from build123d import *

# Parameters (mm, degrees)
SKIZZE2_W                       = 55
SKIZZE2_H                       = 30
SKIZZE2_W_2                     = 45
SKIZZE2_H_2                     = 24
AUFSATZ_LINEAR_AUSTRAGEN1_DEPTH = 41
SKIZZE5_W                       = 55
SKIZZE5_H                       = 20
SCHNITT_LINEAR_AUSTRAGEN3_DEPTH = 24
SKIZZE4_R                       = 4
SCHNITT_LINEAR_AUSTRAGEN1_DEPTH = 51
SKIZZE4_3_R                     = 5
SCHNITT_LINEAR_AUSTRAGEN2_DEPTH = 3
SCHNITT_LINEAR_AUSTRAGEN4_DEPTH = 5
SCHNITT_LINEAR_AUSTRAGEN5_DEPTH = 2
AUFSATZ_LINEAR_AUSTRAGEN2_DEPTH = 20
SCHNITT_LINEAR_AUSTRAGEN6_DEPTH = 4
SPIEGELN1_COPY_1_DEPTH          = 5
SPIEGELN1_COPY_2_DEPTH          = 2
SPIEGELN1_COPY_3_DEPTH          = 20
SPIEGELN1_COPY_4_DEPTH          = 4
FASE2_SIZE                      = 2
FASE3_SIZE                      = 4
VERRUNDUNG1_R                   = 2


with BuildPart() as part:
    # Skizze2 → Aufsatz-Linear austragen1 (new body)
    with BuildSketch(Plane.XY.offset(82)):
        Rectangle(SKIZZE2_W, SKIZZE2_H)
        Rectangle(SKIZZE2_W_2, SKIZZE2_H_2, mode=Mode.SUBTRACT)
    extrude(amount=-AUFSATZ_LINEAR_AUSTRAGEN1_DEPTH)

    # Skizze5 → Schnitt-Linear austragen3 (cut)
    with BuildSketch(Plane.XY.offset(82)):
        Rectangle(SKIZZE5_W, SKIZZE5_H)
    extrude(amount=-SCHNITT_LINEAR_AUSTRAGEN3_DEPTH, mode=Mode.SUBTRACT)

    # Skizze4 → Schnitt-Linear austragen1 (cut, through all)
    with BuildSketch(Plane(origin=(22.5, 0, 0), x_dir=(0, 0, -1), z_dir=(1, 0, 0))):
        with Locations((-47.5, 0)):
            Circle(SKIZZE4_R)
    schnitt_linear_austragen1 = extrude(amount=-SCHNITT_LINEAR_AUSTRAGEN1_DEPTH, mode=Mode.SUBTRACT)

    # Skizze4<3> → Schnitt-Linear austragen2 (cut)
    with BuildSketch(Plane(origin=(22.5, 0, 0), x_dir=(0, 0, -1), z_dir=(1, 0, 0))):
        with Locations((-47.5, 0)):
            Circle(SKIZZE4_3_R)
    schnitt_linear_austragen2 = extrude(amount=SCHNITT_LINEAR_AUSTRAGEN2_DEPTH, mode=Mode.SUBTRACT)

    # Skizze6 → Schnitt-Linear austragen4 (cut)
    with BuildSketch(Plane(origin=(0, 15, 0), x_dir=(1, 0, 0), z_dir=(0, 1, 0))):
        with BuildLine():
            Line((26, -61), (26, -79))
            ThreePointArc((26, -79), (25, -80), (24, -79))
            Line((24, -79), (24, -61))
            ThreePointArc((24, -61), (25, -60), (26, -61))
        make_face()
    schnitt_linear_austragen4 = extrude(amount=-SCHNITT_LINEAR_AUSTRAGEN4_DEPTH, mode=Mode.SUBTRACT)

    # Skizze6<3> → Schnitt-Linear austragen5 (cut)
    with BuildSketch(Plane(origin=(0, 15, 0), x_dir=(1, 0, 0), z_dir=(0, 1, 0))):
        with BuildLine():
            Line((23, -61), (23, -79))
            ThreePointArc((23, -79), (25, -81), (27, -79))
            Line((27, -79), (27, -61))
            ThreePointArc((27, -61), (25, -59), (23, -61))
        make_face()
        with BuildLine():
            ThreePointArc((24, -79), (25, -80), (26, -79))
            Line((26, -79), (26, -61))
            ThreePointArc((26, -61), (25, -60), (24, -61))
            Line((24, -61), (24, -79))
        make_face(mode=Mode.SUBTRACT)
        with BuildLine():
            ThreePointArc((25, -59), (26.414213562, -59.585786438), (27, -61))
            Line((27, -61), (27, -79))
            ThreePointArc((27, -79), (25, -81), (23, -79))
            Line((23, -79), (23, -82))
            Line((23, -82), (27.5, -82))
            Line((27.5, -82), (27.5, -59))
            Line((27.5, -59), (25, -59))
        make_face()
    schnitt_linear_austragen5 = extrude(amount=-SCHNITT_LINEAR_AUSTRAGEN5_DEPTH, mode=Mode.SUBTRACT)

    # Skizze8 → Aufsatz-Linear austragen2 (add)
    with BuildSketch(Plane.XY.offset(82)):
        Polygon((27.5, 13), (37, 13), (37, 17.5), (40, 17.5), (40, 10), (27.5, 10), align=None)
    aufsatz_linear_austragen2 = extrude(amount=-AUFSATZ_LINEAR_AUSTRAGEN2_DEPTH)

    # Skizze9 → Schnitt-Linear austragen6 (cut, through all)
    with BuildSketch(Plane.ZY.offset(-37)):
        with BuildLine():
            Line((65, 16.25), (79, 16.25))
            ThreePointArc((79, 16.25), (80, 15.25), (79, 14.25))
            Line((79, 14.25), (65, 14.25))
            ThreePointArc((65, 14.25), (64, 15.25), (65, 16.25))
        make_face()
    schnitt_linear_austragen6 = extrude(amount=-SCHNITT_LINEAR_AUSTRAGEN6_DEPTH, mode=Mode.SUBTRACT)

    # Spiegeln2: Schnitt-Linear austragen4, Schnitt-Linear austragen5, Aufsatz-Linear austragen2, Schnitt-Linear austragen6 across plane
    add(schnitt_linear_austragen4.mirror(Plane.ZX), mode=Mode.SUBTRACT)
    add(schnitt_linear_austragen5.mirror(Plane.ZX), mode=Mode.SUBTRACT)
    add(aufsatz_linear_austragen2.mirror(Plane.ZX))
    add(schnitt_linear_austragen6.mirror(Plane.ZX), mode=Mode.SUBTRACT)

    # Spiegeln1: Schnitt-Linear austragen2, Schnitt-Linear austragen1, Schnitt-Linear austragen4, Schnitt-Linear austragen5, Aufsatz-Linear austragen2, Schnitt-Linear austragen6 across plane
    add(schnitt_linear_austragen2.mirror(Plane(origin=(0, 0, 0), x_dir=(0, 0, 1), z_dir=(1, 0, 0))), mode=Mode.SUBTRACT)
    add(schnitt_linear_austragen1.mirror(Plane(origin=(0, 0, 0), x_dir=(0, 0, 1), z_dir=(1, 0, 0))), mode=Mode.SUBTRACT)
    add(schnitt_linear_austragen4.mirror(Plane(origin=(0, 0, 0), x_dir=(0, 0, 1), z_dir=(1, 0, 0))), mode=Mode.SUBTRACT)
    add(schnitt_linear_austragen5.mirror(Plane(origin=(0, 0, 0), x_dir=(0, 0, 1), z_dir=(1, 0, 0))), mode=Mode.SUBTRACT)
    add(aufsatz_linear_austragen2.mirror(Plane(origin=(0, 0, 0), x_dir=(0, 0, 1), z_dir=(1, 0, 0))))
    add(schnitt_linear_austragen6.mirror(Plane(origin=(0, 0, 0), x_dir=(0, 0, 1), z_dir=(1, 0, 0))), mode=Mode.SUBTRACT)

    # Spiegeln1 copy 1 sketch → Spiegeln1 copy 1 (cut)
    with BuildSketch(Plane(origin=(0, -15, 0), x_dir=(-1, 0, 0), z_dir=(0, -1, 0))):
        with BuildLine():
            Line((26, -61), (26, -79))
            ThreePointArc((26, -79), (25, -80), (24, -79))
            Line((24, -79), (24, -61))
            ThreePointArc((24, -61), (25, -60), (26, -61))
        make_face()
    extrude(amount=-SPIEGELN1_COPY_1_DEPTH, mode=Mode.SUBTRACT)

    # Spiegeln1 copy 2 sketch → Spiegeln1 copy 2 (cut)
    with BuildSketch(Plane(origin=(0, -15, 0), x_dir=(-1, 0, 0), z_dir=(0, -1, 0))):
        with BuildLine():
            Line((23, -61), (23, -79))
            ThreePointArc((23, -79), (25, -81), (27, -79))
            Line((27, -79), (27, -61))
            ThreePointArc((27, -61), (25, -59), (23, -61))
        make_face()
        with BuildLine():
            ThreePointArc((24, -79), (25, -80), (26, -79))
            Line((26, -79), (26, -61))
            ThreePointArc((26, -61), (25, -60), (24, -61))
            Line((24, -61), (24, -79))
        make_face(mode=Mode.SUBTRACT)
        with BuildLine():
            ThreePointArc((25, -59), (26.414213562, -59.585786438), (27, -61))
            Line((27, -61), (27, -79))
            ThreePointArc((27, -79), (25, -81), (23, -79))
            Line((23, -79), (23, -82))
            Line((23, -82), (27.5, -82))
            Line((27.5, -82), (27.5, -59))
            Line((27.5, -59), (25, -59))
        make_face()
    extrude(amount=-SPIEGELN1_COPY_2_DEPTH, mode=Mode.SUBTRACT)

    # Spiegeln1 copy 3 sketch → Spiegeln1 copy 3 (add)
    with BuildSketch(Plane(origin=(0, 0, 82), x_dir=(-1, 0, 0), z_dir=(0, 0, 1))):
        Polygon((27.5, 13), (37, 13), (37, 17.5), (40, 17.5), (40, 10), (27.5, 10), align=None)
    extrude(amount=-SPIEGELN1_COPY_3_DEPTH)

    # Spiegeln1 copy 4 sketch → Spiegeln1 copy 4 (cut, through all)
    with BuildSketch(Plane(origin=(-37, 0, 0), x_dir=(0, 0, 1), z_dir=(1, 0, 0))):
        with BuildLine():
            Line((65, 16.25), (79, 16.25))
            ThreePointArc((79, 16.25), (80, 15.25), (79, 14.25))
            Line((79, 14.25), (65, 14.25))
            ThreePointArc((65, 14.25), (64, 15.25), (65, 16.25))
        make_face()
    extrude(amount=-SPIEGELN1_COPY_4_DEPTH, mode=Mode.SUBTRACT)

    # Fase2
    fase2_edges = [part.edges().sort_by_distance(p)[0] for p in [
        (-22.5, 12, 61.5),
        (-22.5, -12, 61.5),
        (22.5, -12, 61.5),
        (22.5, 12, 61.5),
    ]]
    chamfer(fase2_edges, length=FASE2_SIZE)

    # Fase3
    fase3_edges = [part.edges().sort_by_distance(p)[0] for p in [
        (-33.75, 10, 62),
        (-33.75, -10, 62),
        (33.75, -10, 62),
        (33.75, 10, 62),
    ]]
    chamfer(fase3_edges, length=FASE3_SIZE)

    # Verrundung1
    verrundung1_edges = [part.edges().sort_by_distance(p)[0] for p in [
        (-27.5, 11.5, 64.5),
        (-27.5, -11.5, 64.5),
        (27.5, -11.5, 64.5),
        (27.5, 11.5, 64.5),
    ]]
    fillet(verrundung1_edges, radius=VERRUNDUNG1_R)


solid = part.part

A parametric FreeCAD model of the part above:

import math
import FreeCAD as App
import Part
import Sketcher
Q = App.Units.Quantity


def edges_at(feature, points):
    """Names of the edges that pass closest to the given points."""
    edges = feature.Shape.Edges
    near = lambda p: min(range(len(edges)), key=lambda i: edges[i].distToShape(Part.Vertex(*p))[0])
    return sorted({f"Edge{near(p) + 1}" for p in points})

doc = App.newDocument("Part")
body = doc.addObject("PartDesign::Body", "Body")

# Sketch on XY plane
sketch1 = body.newObject("Sketcher::SketchObject", "Sketch")
sketch1.AttachmentSupport = (doc.getObject("XY_Plane"), [""])
sketch1.MapMode = "FlatFace"
sketch1.AttachmentOffset = App.Placement(App.Vector(0, 0, 82), App.Rotation())
sketch1.addGeometry([
    Part.LineSegment(App.Vector(-27.5, 15, 0), App.Vector(-27.5, -15, 0)),  # 0
    Part.LineSegment(App.Vector(-27.5, -15, 0), App.Vector(27.5, -15, 0)),  # 1
    Part.LineSegment(App.Vector(27.5, -15, 0), App.Vector(27.5, 15, 0)),  # 2
    Part.LineSegment(App.Vector(27.5, 15, 0), App.Vector(-27.5, 15, 0)),  # 3
    Part.LineSegment(App.Vector(22.5, -12, 0), App.Vector(-22.5, -12, 0)),  # 4
    Part.LineSegment(App.Vector(-22.5, -12, 0), App.Vector(-22.5, 12, 0)),  # 5
    Part.LineSegment(App.Vector(-22.5, 12, 0), App.Vector(22.5, 12, 0)),  # 6
    Part.LineSegment(App.Vector(22.5, 12, 0), App.Vector(22.5, -12, 0)),  # 7
], False)
sketch1.addConstraint([
    Sketcher.Constraint("Coincident", 0, 2, 1, 1),
    Sketcher.Constraint("Coincident", 1, 2, 2, 1),
    Sketcher.Constraint("Coincident", 2, 2, 3, 1),
    Sketcher.Constraint("Coincident", 3, 2, 0, 1),
    Sketcher.Constraint("Coincident", 4, 2, 5, 1),
    Sketcher.Constraint("Coincident", 5, 2, 6, 1),
    Sketcher.Constraint("Coincident", 6, 2, 7, 1),
    Sketcher.Constraint("Coincident", 7, 2, 4, 1),
    Sketcher.Constraint("Vertical", 0),
    Sketcher.Constraint("Horizontal", 1),
    Sketcher.Constraint("Vertical", 2),
    Sketcher.Constraint("Horizontal", 3),
    Sketcher.Constraint("Horizontal", 4),
    Sketcher.Constraint("Vertical", 5),
    Sketcher.Constraint("Horizontal", 6),
    Sketcher.Constraint("Vertical", 7),
    Sketcher.Constraint("Symmetric", 0, 2, 2, 2, -1, 1),
    Sketcher.Constraint("Symmetric", 4, 2, 6, 2, -1, 1),
    Sketcher.Constraint("DistanceX", 1, 1, 1, 2, Q("55 mm")),
    Sketcher.Constraint("DistanceX", 4, 2, 4, 1, Q("45 mm")),
    Sketcher.Constraint("DistanceY", 0, 2, 0, 1, Q("30 mm")),
    Sketcher.Constraint("DistanceY", 5, 1, 5, 2, Q("24 mm")),
])
pad1 = body.newObject("PartDesign::Pad", "Pad")
pad1.Profile = sketch1
pad1.Length = 41
pad1.Reversed = True

# Sketch on XY plane
sketch2 = body.newObject("Sketcher::SketchObject", "Sketch001")
sketch2.AttachmentSupport = (doc.getObject("XY_Plane"), [""])
sketch2.MapMode = "FlatFace"
sketch2.AttachmentOffset = App.Placement(App.Vector(0, 0, 82), App.Rotation())
sketch2.addGeometry([
    Part.LineSegment(App.Vector(-27.5, 10, 0), App.Vector(-27.5, -10, 0)),
    Part.LineSegment(App.Vector(-27.5, -10, 0), App.Vector(27.5, -10, 0)),
    Part.LineSegment(App.Vector(27.5, -10, 0), App.Vector(27.5, 10, 0)),
    Part.LineSegment(App.Vector(27.5, 10, 0), App.Vector(-27.5, 10, 0)),
], False)
sketch2.addConstraint([
    Sketcher.Constraint("Coincident", 0, 2, 1, 1),
    Sketcher.Constraint("Coincident", 1, 2, 2, 1),
    Sketcher.Constraint("Coincident", 2, 2, 3, 1),
    Sketcher.Constraint("Coincident", 3, 2, 0, 1),
    Sketcher.Constraint("Vertical", 0),
    Sketcher.Constraint("Horizontal", 1),
    Sketcher.Constraint("Vertical", 2),
    Sketcher.Constraint("Horizontal", 3),
    Sketcher.Constraint("Symmetric", 0, 2, 2, 2, -1, 1),
    Sketcher.Constraint("DistanceX", 1, 1, 1, 2, Q("55 mm")),
    Sketcher.Constraint("DistanceY", 0, 2, 0, 1, Q("20 mm")),
])
pocket1 = body.newObject("PartDesign::Pocket", "Pocket")
pocket1.Profile = sketch2
pocket1.Length = 24

# Sketch on YZ plane
sketch3 = body.newObject("Sketcher::SketchObject", "Sketch002")
sketch3.AttachmentSupport = (doc.getObject("YZ_Plane"), [""])
sketch3.MapMode = "FlatFace"
sketch3.AttachmentOffset = App.Placement(App.Vector(0, 0, 22.5), App.Rotation())
sketch3.addGeometry(Part.Circle(App.Vector(0, 47.5, 0), App.Vector(0, 0, 1), 4), False)
sketch3.addConstraint([
    Sketcher.Constraint("PointOnObject", 0, 3, -2),
    Sketcher.Constraint("Diameter", 0, Q("8 mm")),
    Sketcher.Constraint("DistanceY", -1, 1, 0, 3, Q("47.5 mm")),
])
pocket2 = body.newObject("PartDesign::Pocket", "Pocket001")
pocket2.Profile = sketch3
pocket2.Type = "ThroughAll"

# Sketch on YZ plane
sketch4 = body.newObject("Sketcher::SketchObject", "Sketch003")
sketch4.AttachmentSupport = (doc.getObject("YZ_Plane"), [""])
sketch4.MapMode = "FlatFace"
sketch4.AttachmentOffset = App.Placement(App.Vector(0, 0, 22.5), App.Rotation())
sketch4.addGeometry(Part.Circle(App.Vector(0, 47.5, 0), App.Vector(0, 0, 1), 5), False)
sketch4.addConstraint([
    Sketcher.Constraint("PointOnObject", 0, 3, -2),
    Sketcher.Constraint("Diameter", 0, Q("10 mm")),
    Sketcher.Constraint("DistanceY", -1, 1, 0, 3, Q("47.5 mm")),
])
pocket3 = body.newObject("PartDesign::Pocket", "Pocket002")
pocket3.Profile = sketch4
pocket3.Length = 3
pocket3.Reversed = True

# Sketch on XZ plane
sketch5 = body.newObject("Sketcher::SketchObject", "Sketch004")
sketch5.AttachmentSupport = (doc.getObject("XZ_Plane"), [""])
sketch5.MapMode = "FlatFace"
sketch5.AttachmentOffset = App.Placement(App.Vector(0, 0, -15), App.Rotation())
sketch5.addGeometry([
    Part.LineSegment(App.Vector(26, 79, 0), App.Vector(26, 61, 0)),
    Part.ArcOfCircle(Part.Circle(App.Vector(25, 61, 0), App.Vector(0, 0, 1), 1), math.radians(180), math.radians(360)),
    Part.LineSegment(App.Vector(24, 61, 0), App.Vector(24, 79, 0)),
    Part.ArcOfCircle(Part.Circle(App.Vector(25, 79, 0), App.Vector(0, 0, 1), 1), math.radians(0), math.radians(180)),
], False)
sketch5.addConstraint([
    Sketcher.Constraint("Tangent", 0, 2, 1, 2),
    Sketcher.Constraint("Tangent", 1, 1, 2, 1),
    Sketcher.Constraint("Tangent", 2, 2, 3, 2),
    Sketcher.Constraint("Tangent", 3, 1, 0, 1),
    Sketcher.Constraint("Vertical", 0),
    Sketcher.Constraint("Vertical", 2),
    Sketcher.Constraint("Radius", 1, Q("1 mm")),
    Sketcher.Constraint("DistanceY", 0, 2, 0, 1, Q("18 mm")),
    Sketcher.Constraint("DistanceX", -1, 1, 1, 3, Q("25 mm")),
    Sketcher.Constraint("DistanceY", -1, 1, 1, 3, Q("61 mm")),
])
pocket4 = body.newObject("PartDesign::Pocket", "Pocket003")
pocket4.Profile = sketch5
pocket4.Length = 5
pocket4.Reversed = True

# Sketch on XZ plane
sketch6 = body.newObject("Sketcher::SketchObject", "Sketch005")
sketch6.AttachmentSupport = (doc.getObject("XZ_Plane"), [""])
sketch6.MapMode = "FlatFace"
sketch6.AttachmentOffset = App.Placement(App.Vector(0, 0, -15), App.Rotation())
sketch6.addGeometry([
    Part.LineSegment(App.Vector(23, 61, 0), App.Vector(23, 82, 0)),  # 0
    Part.LineSegment(App.Vector(23, 82, 0), App.Vector(27.5, 82, 0)),  # 1
    Part.LineSegment(App.Vector(27.5, 82, 0), App.Vector(27.5, 59, 0)),  # 2
    Part.LineSegment(App.Vector(27.5, 59, 0), App.Vector(25, 59, 0)),  # 3
    Part.ArcOfCircle(Part.Circle(App.Vector(25, 61, 0), App.Vector(0, 0, 1), 2), math.radians(180), math.radians(270)),  # 4
    Part.ArcOfCircle(Part.Circle(App.Vector(25, 79, 0), App.Vector(0, 0, 1), 1), math.radians(0), math.radians(180)),  # 5
    Part.LineSegment(App.Vector(24, 79, 0), App.Vector(24, 61, 0)),  # 6
    Part.ArcOfCircle(Part.Circle(App.Vector(25, 61, 0), App.Vector(0, 0, 1), 1), math.radians(180), math.radians(360)),  # 7
    Part.LineSegment(App.Vector(26, 61, 0), App.Vector(26, 79, 0)),  # 8
], False)
sketch6.addConstraint([
    Sketcher.Constraint("Coincident", 0, 2, 1, 1),
    Sketcher.Constraint("Coincident", 1, 2, 2, 1),
    Sketcher.Constraint("Coincident", 2, 2, 3, 1),
    Sketcher.Constraint("Tangent", 3, 2, 4, 2),
    Sketcher.Constraint("Tangent", 4, 1, 0, 1),
    Sketcher.Constraint("Tangent", 5, 2, 6, 1),
    Sketcher.Constraint("Tangent", 6, 2, 7, 1),
    Sketcher.Constraint("Tangent", 7, 2, 8, 1),
    Sketcher.Constraint("Tangent", 8, 2, 5, 1),
    Sketcher.Constraint("Vertical", 0),
    Sketcher.Constraint("Horizontal", 1),
    Sketcher.Constraint("Vertical", 2),
    Sketcher.Constraint("Horizontal", 3),
    Sketcher.Constraint("Vertical", 6),
    Sketcher.Constraint("Vertical", 8),
    Sketcher.Constraint("Coincident", 7, 3, 4, 3),
    Sketcher.Constraint("Radius", 4, Q("2 mm")),
    Sketcher.Constraint("Radius", 5, Q("1 mm")),
    Sketcher.Constraint("DistanceY", 0, 1, 0, 2, Q("21 mm")),
    Sketcher.Constraint("DistanceY", 6, 2, 6, 1, Q("18 mm")),
    Sketcher.Constraint("DistanceX", 1, 1, 1, 2, Q("4.5 mm")),
    Sketcher.Constraint("DistanceX", -1, 1, 4, 3, Q("25 mm")),
    Sketcher.Constraint("DistanceY", -1, 1, 4, 3, Q("61 mm")),
])
pocket5 = body.newObject("PartDesign::Pocket", "Pocket004")
pocket5.Profile = sketch6
pocket5.Length = 2
pocket5.Reversed = True

# Sketch on XY plane
sketch7 = body.newObject("Sketcher::SketchObject", "Sketch006")
sketch7.AttachmentSupport = (doc.getObject("XY_Plane"), [""])
sketch7.MapMode = "FlatFace"
sketch7.AttachmentOffset = App.Placement(App.Vector(0, 0, 82), App.Rotation())
sketch7.addGeometry([
    Part.LineSegment(App.Vector(37, 13, 0), App.Vector(27.5, 13, 0)),  # 0
    Part.LineSegment(App.Vector(27.5, 13, 0), App.Vector(27.5, 10, 0)),  # 1
    Part.LineSegment(App.Vector(27.5, 10, 0), App.Vector(40, 10, 0)),  # 2
    Part.LineSegment(App.Vector(40, 10, 0), App.Vector(40, 17.5, 0)),  # 3
    Part.LineSegment(App.Vector(40, 17.5, 0), App.Vector(37, 17.5, 0)),  # 4
    Part.LineSegment(App.Vector(37, 17.5, 0), App.Vector(37, 13, 0)),  # 5
], False)
sketch7.addConstraint([
    Sketcher.Constraint("Coincident", 0, 2, 1, 1),
    Sketcher.Constraint("Coincident", 1, 2, 2, 1),
    Sketcher.Constraint("Coincident", 2, 2, 3, 1),
    Sketcher.Constraint("Coincident", 3, 2, 4, 1),
    Sketcher.Constraint("Coincident", 4, 2, 5, 1),
    Sketcher.Constraint("Coincident", 5, 2, 0, 1),
    Sketcher.Constraint("Horizontal", 0),
    Sketcher.Constraint("Vertical", 1),
    Sketcher.Constraint("Horizontal", 2),
    Sketcher.Constraint("Vertical", 3),
    Sketcher.Constraint("Horizontal", 4),
    Sketcher.Constraint("Vertical", 5),
    Sketcher.Constraint("Equal", 4, 1),
    Sketcher.Constraint("DistanceX", 4, 2, 4, 1, Q("3 mm")),
    Sketcher.Constraint("DistanceX", 0, 2, 0, 1, Q("9.5 mm")),
    Sketcher.Constraint("DistanceY", 3, 1, 3, 2, Q("7.5 mm")),
    Sketcher.Constraint("DistanceY", -1, 1, 0, 2, Q("13 mm")),
    Sketcher.Constraint("DistanceX", -1, 1, 2, 2, Q("40 mm")),
])
pad2 = body.newObject("PartDesign::Pad", "Pad001")
pad2.Profile = sketch7
pad2.Length = 20
pad2.Reversed = True

# Sketch on YZ plane
sketch8 = body.newObject("Sketcher::SketchObject", "Sketch007")
sketch8.AttachmentSupport = (doc.getObject("YZ_Plane"), [""])
sketch8.MapMode = "FlatFace"
sketch8.AttachmentOffset = App.Placement(App.Vector(0, 0, 37), App.Rotation())
sketch8.addGeometry([
    Part.LineSegment(App.Vector(16.25, 79, 0), App.Vector(16.25, 65, 0)),
    Part.ArcOfCircle(Part.Circle(App.Vector(15.25, 65, 0), App.Vector(0, 0, 1), 1), math.radians(180), math.radians(360)),
    Part.LineSegment(App.Vector(14.25, 65, 0), App.Vector(14.25, 79, 0)),
    Part.ArcOfCircle(Part.Circle(App.Vector(15.25, 79, 0), App.Vector(0, 0, 1), 1), math.radians(0), math.radians(180)),
], False)
sketch8.addConstraint([
    Sketcher.Constraint("Tangent", 0, 2, 1, 2),
    Sketcher.Constraint("Tangent", 1, 1, 2, 1),
    Sketcher.Constraint("Tangent", 2, 2, 3, 2),
    Sketcher.Constraint("Tangent", 3, 1, 0, 1),
    Sketcher.Constraint("Vertical", 0),
    Sketcher.Constraint("Vertical", 2),
    Sketcher.Constraint("Radius", 1, Q("1 mm")),
    Sketcher.Constraint("DistanceY", 0, 2, 0, 1, Q("14 mm")),
    Sketcher.Constraint("DistanceY", -1, 1, 1, 3, Q("65 mm")),
    Sketcher.Constraint("DistanceX", -1, 1, 1, 3, Q("15.25 mm")),
])
pocket6 = body.newObject("PartDesign::Pocket", "Pocket005")
pocket6.Profile = sketch8
pocket6.Type = "ThroughAll"
pocket6.Reversed = True
doc.recompute()

mirrored = body.newObject("PartDesign::Mirrored", "Mirrored")
mirrored.Originals = [pocket4, pocket5, pad2, pocket6]
mirrored.MirrorPlane = (doc.getObject("XZ_Plane"), [""])
body.Tip = mirrored
doc.recompute()

mirrored2 = body.newObject("PartDesign::Mirrored", "Mirrored001")
mirrored2.Originals = [pocket3, pocket2, pocket4, pocket5, pad2, pocket6]
mirrored2.MirrorPlane = (doc.getObject("YZ_Plane"), [""])
body.Tip = mirrored2

# Sketch on XZ plane
sketch9 = body.newObject("Sketcher::SketchObject", "Sketch008")
sketch9.AttachmentSupport = (doc.getObject("XZ_Plane"), [""])
sketch9.MapMode = "FlatFace"
sketch9.AttachmentOffset = App.Placement(App.Vector(0, 0, 15), App.Rotation())
sketch9.addGeometry([
    Part.LineSegment(App.Vector(-26, 79, 0), App.Vector(-26, 61, 0)),
    Part.ArcOfCircle(Part.Circle(App.Vector(-25, 61, 0), App.Vector(0, 0, 1), 1), math.radians(180), math.radians(360)),
    Part.LineSegment(App.Vector(-24, 61, 0), App.Vector(-24, 79, 0)),
    Part.ArcOfCircle(Part.Circle(App.Vector(-25, 79, 0), App.Vector(0, 0, 1), 1), math.radians(0), math.radians(180)),
], False)
sketch9.addConstraint([
    Sketcher.Constraint("Tangent", 0, 2, 1, 1),
    Sketcher.Constraint("Tangent", 1, 2, 2, 1),
    Sketcher.Constraint("Tangent", 2, 2, 3, 1),
    Sketcher.Constraint("Tangent", 3, 2, 0, 1),
    Sketcher.Constraint("Vertical", 0),
    Sketcher.Constraint("Vertical", 2),
    Sketcher.Constraint("Radius", 1, Q("1 mm")),
    Sketcher.Constraint("DistanceY", 0, 2, 0, 1, Q("18 mm")),
    Sketcher.Constraint("DistanceX", 1, 3, -1, 1, Q("25 mm")),
    Sketcher.Constraint("DistanceY", -1, 1, 1, 3, Q("61 mm")),
])
pocket7 = body.newObject("PartDesign::Pocket", "Pocket006")
pocket7.Profile = sketch9
pocket7.Length = 5

# Sketch on XZ plane
sketch10 = body.newObject("Sketcher::SketchObject", "Sketch009")
sketch10.AttachmentSupport = (doc.getObject("XZ_Plane"), [""])
sketch10.MapMode = "FlatFace"
sketch10.AttachmentOffset = App.Placement(App.Vector(0, 0, 15), App.Rotation())
sketch10.addGeometry([
    Part.LineSegment(App.Vector(-23, 61, 0), App.Vector(-23, 82, 0)),  # 0
    Part.LineSegment(App.Vector(-23, 82, 0), App.Vector(-27.5, 82, 0)),  # 1
    Part.LineSegment(App.Vector(-27.5, 82, 0), App.Vector(-27.5, 59, 0)),  # 2
    Part.LineSegment(App.Vector(-27.5, 59, 0), App.Vector(-25, 59, 0)),  # 3
    Part.ArcOfCircle(Part.Circle(App.Vector(-25, 61, 0), App.Vector(0, 0, 1), 2), math.radians(-90), math.radians(0)),  # 4
    Part.ArcOfCircle(Part.Circle(App.Vector(-25, 79, 0), App.Vector(0, 0, 1), 1), math.radians(0), math.radians(180)),  # 5
    Part.LineSegment(App.Vector(-24, 79, 0), App.Vector(-24, 61, 0)),  # 6
    Part.ArcOfCircle(Part.Circle(App.Vector(-25, 61, 0), App.Vector(0, 0, 1), 1), math.radians(180), math.radians(360)),  # 7
    Part.LineSegment(App.Vector(-26, 61, 0), App.Vector(-26, 79, 0)),  # 8
], False)
sketch10.addConstraint([
    Sketcher.Constraint("Coincident", 0, 2, 1, 1),
    Sketcher.Constraint("Coincident", 1, 2, 2, 1),
    Sketcher.Constraint("Coincident", 2, 2, 3, 1),
    Sketcher.Constraint("Tangent", 3, 2, 4, 1),
    Sketcher.Constraint("Tangent", 4, 2, 0, 1),
    Sketcher.Constraint("Tangent", 5, 1, 6, 1),
    Sketcher.Constraint("Tangent", 6, 2, 7, 2),
    Sketcher.Constraint("Tangent", 7, 1, 8, 1),
    Sketcher.Constraint("Tangent", 8, 2, 5, 2),
    Sketcher.Constraint("Vertical", 0),
    Sketcher.Constraint("Horizontal", 1),
    Sketcher.Constraint("Vertical", 2),
    Sketcher.Constraint("Horizontal", 3),
    Sketcher.Constraint("Vertical", 6),
    Sketcher.Constraint("Vertical", 8),
    Sketcher.Constraint("Coincident", 7, 3, 4, 3),
    Sketcher.Constraint("Radius", 4, Q("2 mm")),
    Sketcher.Constraint("Radius", 5, Q("1 mm")),
    Sketcher.Constraint("DistanceY", 0, 1, 0, 2, Q("21 mm")),
    Sketcher.Constraint("DistanceY", 6, 2, 6, 1, Q("18 mm")),
    Sketcher.Constraint("DistanceX", 1, 2, 1, 1, Q("4.5 mm")),
    Sketcher.Constraint("DistanceX", 4, 3, -1, 1, Q("25 mm")),
    Sketcher.Constraint("DistanceY", -1, 1, 4, 3, Q("61 mm")),
])
pocket8 = body.newObject("PartDesign::Pocket", "Pocket007")
pocket8.Profile = sketch10
pocket8.Length = 2

# Sketch on XY plane
sketch11 = body.newObject("Sketcher::SketchObject", "Sketch010")
sketch11.AttachmentSupport = (doc.getObject("XY_Plane"), [""])
sketch11.MapMode = "FlatFace"
sketch11.AttachmentOffset = App.Placement(App.Vector(0, 0, 82), App.Rotation())
sketch11.addGeometry([
    Part.LineSegment(App.Vector(-37, -13, 0), App.Vector(-27.5, -13, 0)),  # 0
    Part.LineSegment(App.Vector(-27.5, -13, 0), App.Vector(-27.5, -10, 0)),  # 1
    Part.LineSegment(App.Vector(-27.5, -10, 0), App.Vector(-40, -10, 0)),  # 2
    Part.LineSegment(App.Vector(-40, -10, 0), App.Vector(-40, -17.5, 0)),  # 3
    Part.LineSegment(App.Vector(-40, -17.5, 0), App.Vector(-37, -17.5, 0)),  # 4
    Part.LineSegment(App.Vector(-37, -17.5, 0), App.Vector(-37, -13, 0)),  # 5
], False)
sketch11.addConstraint([
    Sketcher.Constraint("Coincident", 0, 2, 1, 1),
    Sketcher.Constraint("Coincident", 1, 2, 2, 1),
    Sketcher.Constraint("Coincident", 2, 2, 3, 1),
    Sketcher.Constraint("Coincident", 3, 2, 4, 1),
    Sketcher.Constraint("Coincident", 4, 2, 5, 1),
    Sketcher.Constraint("Coincident", 5, 2, 0, 1),
    Sketcher.Constraint("Horizontal", 0),
    Sketcher.Constraint("Vertical", 1),
    Sketcher.Constraint("Horizontal", 2),
    Sketcher.Constraint("Vertical", 3),
    Sketcher.Constraint("Horizontal", 4),
    Sketcher.Constraint("Vertical", 5),
    Sketcher.Constraint("Equal", 4, 1),
    Sketcher.Constraint("DistanceX", 4, 1, 4, 2, Q("3 mm")),
    Sketcher.Constraint("DistanceX", 0, 1, 0, 2, Q("9.5 mm")),
    Sketcher.Constraint("DistanceY", 3, 2, 3, 1, Q("7.5 mm")),
    Sketcher.Constraint("DistanceY", 0, 2, -1, 1, Q("13 mm")),
    Sketcher.Constraint("DistanceX", 2, 2, -1, 1, Q("40 mm")),
])
pad3 = body.newObject("PartDesign::Pad", "Pad002")
pad3.Profile = sketch11
pad3.Length = 20
pad3.Reversed = True

# Sketch on YZ plane
sketch12 = body.newObject("Sketcher::SketchObject", "Sketch011")
sketch12.AttachmentSupport = (doc.getObject("YZ_Plane"), [""])
sketch12.MapMode = "FlatFace"
sketch12.AttachmentOffset = App.Placement(App.Vector(0, 0, -37), App.Rotation())
sketch12.addGeometry([
    Part.LineSegment(App.Vector(-16.25, 79, 0), App.Vector(-16.25, 65, 0)),
    Part.ArcOfCircle(Part.Circle(App.Vector(-15.25, 65, 0), App.Vector(0, 0, 1), 1), math.radians(180), math.radians(360)),
    Part.LineSegment(App.Vector(-14.25, 65, 0), App.Vector(-14.25, 79, 0)),
    Part.ArcOfCircle(Part.Circle(App.Vector(-15.25, 79, 0), App.Vector(0, 0, 1), 1), math.radians(0), math.radians(180)),
], False)
sketch12.addConstraint([
    Sketcher.Constraint("Tangent", 0, 2, 1, 1),
    Sketcher.Constraint("Tangent", 1, 2, 2, 1),
    Sketcher.Constraint("Tangent", 2, 2, 3, 1),
    Sketcher.Constraint("Tangent", 3, 2, 0, 1),
    Sketcher.Constraint("Vertical", 0),
    Sketcher.Constraint("Vertical", 2),
    Sketcher.Constraint("Radius", 1, Q("1 mm")),
    Sketcher.Constraint("DistanceY", 0, 2, 0, 1, Q("14 mm")),
    Sketcher.Constraint("DistanceY", -1, 1, 1, 3, Q("65 mm")),
    Sketcher.Constraint("DistanceX", 1, 3, -1, 1, Q("15.25 mm")),
])
pocket9 = body.newObject("PartDesign::Pocket", "Pocket008")
pocket9.Profile = sketch12
pocket9.Type = "ThroughAll"
doc.recompute()

chamfer = body.newObject("PartDesign::Chamfer", "Chamfer")
chamfer.Base = (pocket9, edges_at(pocket9, [
    (-22.5, 12, 61.5),
    (-22.5, -12, 61.5),
    (22.5, -12, 61.5),
    (22.5, 12, 61.5),
]))
chamfer.Size = 2
doc.recompute()

chamfer2 = body.newObject("PartDesign::Chamfer", "Chamfer001")
chamfer2.Base = (chamfer, edges_at(chamfer, [
    (-33.75, 10, 62),
    (-33.75, -10, 62),
    (33.75, -10, 62),
    (33.75, 10, 62),
]))
chamfer2.Size = 4
doc.recompute()

fillet = body.newObject("PartDesign::Fillet", "Fillet")
fillet.Base = (chamfer2, edges_at(chamfer2, [
    (-27.5, 11.5, 64.5),
    (-27.5, -11.5, 64.5),
    (27.5, -11.5, 64.5),
    (27.5, 11.5, 64.5),
]))
fillet.Radius = 2

doc.recompute()
